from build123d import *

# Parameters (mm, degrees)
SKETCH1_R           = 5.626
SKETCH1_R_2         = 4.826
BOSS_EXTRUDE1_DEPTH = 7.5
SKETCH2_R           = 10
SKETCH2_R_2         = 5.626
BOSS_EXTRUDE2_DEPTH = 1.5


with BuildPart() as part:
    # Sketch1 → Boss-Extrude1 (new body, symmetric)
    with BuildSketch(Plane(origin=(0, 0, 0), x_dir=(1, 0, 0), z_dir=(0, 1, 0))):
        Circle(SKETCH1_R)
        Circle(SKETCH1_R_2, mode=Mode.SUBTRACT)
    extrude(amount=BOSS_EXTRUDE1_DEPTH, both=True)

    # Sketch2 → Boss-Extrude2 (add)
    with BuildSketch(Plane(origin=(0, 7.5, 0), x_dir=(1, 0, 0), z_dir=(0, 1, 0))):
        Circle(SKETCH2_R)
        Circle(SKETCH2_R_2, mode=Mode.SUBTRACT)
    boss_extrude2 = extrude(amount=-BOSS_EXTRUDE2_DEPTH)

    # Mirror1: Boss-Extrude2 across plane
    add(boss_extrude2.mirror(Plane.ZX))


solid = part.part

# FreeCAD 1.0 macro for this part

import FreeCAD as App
import Part
import Sketcher

V = App.Vector
Q = App.Units.Quantity

doc = App.newDocument("Part")
params = doc.addObject("Spreadsheet::Sheet", "Params")
for row, (alias, value) in enumerate([
    ("pad1_length", "15 mm"),
    ("sketch2_diameter", "20 mm"),
    ("pad2_length", "1.5 mm"),
], start=1):
    params.set(f"A{row}", alias)
    params.set(f"B{row}", "=" + value)
    params.setAlias(f"B{row}", alias)

body = doc.addObject("PartDesign::Body", "Body")

sketch1 = body.newObject("Sketcher::SketchObject", "Sketch")
sketch1.AttachmentSupport = (doc.getObject("XZ_Plane"), [""])
sketch1.MapMode = "FlatFace"
sketch1.addGeometry(Part.Circle(V(0, 0, 0), V(0, 0, 1), 5.6), False)
sketch1.addGeometry(Part.Circle(V(0, 0, 0), V(0, 0, 1), 4.8), False)
sketch1.addConstraint(Sketcher.Constraint("Coincident", 0, 3, -1, 1))
sketch1.addConstraint(Sketcher.Constraint("Coincident", 1, 3, -1, 1))
sketch1.addConstraint(Sketcher.Constraint("Diameter", 0, Q("11.252 mm")))
sketch1.addConstraint(Sketcher.Constraint("Diameter", 1, Q("9.652 mm")))
pad1 = body.newObject("PartDesign::Pad", "Pad")
pad1.Profile = sketch1
pad1.setExpression("Length", "Params.pad1_length")
pad1.Midplane = True

sketch2 = body.newObject("Sketcher::SketchObject", "Sketch001")
sketch2.AttachmentSupport = (doc.getObject("XZ_Plane"), [""])
sketch2.MapMode = "FlatFace"
sketch2.AttachmentOffset = App.Placement(V(0, 0, -7.5), App.Rotation())
sketch2.addGeometry(Part.Circle(V(0, 0, 0), V(0, 0, 1), 10), False)
sketch2.addGeometry(Part.Circle(V(0, 0, 0), V(0, 0, 1), 6), False)
sketch2.addConstraint(Sketcher.Constraint("Coincident", 0, 3, -1, 1))
sketch2.addConstraint(Sketcher.Constraint("Coincident", 1, 3, -1, 1))
sketch2.addConstraint(Sketcher.Constraint("Diameter", 0, Q("20 mm")))
sketch2.addConstraint(Sketcher.Constraint("Diameter", 1, Q("11.252 mm")))
sketch2.setExpression("Constraints[2]", "Params.sketch2_diameter")
pad2 = body.newObject("PartDesign::Pad", "Pad001")
pad2.Profile = sketch2
pad2.setExpression("Length", "Params.pad2_length")
doc.recompute()

mirrored = body.newObject("PartDesign::Mirrored", "Mirrored")
mirrored.Originals = [pad2]
mirrored.MirrorPlane = (doc.getObject("XZ_Plane"), [""])
body.Tip = mirrored

doc.recompute()
